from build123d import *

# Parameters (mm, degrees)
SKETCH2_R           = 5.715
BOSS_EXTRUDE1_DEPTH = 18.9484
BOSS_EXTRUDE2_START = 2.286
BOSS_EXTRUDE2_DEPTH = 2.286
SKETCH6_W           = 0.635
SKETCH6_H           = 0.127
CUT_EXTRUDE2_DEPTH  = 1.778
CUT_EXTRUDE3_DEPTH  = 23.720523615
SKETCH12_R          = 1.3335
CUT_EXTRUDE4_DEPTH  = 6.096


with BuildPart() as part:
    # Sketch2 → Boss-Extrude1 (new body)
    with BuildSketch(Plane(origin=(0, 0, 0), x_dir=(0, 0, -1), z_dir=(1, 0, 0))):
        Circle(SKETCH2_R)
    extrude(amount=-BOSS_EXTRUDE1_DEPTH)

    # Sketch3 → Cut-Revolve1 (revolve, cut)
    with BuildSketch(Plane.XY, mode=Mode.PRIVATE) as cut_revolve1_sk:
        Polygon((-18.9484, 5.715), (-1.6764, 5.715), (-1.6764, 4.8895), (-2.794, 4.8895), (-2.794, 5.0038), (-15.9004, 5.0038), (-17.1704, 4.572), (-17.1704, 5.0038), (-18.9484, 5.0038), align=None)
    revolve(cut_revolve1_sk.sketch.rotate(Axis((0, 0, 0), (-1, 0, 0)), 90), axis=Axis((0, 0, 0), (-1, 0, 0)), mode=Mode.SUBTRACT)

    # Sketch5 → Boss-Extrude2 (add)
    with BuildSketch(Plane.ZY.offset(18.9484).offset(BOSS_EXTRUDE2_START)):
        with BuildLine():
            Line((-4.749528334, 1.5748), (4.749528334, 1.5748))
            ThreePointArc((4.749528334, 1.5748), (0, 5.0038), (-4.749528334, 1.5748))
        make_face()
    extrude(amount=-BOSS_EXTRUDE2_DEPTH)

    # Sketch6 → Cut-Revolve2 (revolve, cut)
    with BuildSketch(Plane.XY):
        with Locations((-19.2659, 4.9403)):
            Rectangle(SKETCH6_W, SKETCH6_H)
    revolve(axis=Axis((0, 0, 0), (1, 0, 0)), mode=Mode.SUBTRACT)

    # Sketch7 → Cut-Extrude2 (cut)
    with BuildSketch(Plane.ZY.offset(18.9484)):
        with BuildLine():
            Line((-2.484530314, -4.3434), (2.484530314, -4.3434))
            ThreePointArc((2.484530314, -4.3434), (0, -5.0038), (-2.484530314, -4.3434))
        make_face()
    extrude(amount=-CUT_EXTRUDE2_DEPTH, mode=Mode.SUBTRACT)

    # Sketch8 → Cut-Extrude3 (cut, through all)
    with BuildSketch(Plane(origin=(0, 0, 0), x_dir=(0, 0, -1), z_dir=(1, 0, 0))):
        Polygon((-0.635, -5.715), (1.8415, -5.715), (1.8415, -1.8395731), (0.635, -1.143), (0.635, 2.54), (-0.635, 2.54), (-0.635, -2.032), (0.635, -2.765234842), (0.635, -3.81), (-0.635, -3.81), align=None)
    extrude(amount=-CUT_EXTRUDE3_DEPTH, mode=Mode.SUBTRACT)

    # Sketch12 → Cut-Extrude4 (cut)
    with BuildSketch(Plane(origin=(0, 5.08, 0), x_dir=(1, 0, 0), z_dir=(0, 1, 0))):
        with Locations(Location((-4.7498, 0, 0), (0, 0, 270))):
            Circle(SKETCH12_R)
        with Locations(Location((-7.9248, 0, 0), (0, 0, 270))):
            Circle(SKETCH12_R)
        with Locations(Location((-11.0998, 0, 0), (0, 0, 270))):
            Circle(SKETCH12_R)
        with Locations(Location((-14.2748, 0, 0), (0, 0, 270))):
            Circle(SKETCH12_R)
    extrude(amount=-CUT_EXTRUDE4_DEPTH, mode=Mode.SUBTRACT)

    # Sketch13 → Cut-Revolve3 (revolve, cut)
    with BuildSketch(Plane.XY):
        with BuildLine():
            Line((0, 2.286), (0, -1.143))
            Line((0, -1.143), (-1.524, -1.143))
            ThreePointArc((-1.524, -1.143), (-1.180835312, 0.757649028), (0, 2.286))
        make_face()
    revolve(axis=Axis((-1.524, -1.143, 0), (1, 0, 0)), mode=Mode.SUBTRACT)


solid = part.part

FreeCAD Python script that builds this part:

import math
import FreeCAD as App
import Part
import Sketcher
Q = App.Units.Quantity

doc = App.newDocument("Part")
body = doc.addObject("PartDesign::Body", "Body")

# Sketch on YZ plane
sketch1 = body.newObject("Sketcher::SketchObject", "Sketch")
sketch1.AttachmentSupport = (doc.getObject("YZ_Plane"), [""])
sketch1.MapMode = "FlatFace"
sketch1.addGeometry(Part.Circle(App.Vector(0, 0, 0), App.Vector(0, 0, 1), 5.715), False)
sketch1.addConstraint([
    Sketcher.Constraint("Coincident", 0, 3, -1, 1),
    Sketcher.Constraint("Diameter", 0, Q("0.45 in")),
])
pad1 = body.newObject("PartDesign::Pad", "Pad")
pad1.Profile = sketch1
pad1.Length = Q("0.746 in")
pad1.Reversed = True

# Sketch on XY plane
sketch2 = body.newObject("Sketcher::SketchObject", "Sketch001")
sketch2.AttachmentSupport = (doc.getObject("XY_Plane"), [""])
sketch2.MapMode = "FlatFace"
sketch2.addGeometry([
    Part.LineSegment(App.Vector(-1.6764, 5.715, 0), App.Vector(-18.9484, 5.715, 0)),  # 0
    Part.LineSegment(App.Vector(-18.9484, 5.715, 0), App.Vector(-18.9484, 5.0038, 0)),  # 1
    Part.LineSegment(App.Vector(-18.9484, 5.0038, 0), App.Vector(-17.1704, 5.0038, 0)),  # 2
    Part.LineSegment(App.Vector(-17.1704, 5.0038, 0), App.Vector(-17.1704, 4.572, 0)),  # 3
    Part.LineSegment(App.Vector(-17.1704, 4.572, 0), App.Vector(-15.9004, 5.0038, 0)),  # 4
    Part.LineSegment(App.Vector(-15.9004, 5.0038, 0), App.Vector(-2.794, 5.0038, 0)),  # 5
    Part.LineSegment(App.Vector(-2.794, 5.0038, 0), App.Vector(-2.794, 4.8895, 0)),  # 6
    Part.LineSegment(App.Vector(-2.794, 4.8895, 0), App.Vector(-1.6764, 4.8895, 0)),  # 7
    Part.LineSegment(App.Vector(-1.6764, 4.8895, 0), App.Vector(-1.6764, 5.715, 0)),  # 8
], False)
sketch2.addConstraint([
    Sketcher.Constraint("Coincident", 0, 2, 1, 1),
    Sketcher.Constraint("Coincident", 1, 2, 2, 1),
    Sketcher.Constraint("Coincident", 2, 2, 3, 1),
    Sketcher.Constraint("Coincident", 3, 2, 4, 1),
    Sketcher.Constraint("Coincident", 4, 2, 5, 1),
    Sketcher.Constraint("Coincident", 5, 2, 6, 1),
    Sketcher.Constraint("Coincident", 6, 2, 7, 1),
    Sketcher.Constraint("Coincident", 7, 2, 8, 1),
    Sketcher.Constraint("Coincident", 8, 2, 0, 1),
    Sketcher.Constraint("Horizontal", 0),
    Sketcher.Constraint("Vertical", 1),
    Sketcher.Constraint("Horizontal", 2),
    Sketcher.Constraint("Vertical", 3),
    Sketcher.Constraint("Horizontal", 5),
    Sketcher.Constraint("Vertical", 6),
    Sketcher.Constraint("Horizontal", 7),
    Sketcher.Constraint("Vertical", 8),
    Sketcher.Constraint("Horizontal", 2, 2, 4, 2),
    Sketcher.Constraint("DistanceX", 0, 2, 0, 1, Q("0.68 in")),
    Sketcher.Constraint("DistanceX", 2, 1, 2, 2, Q("0.07 in")),
    Sketcher.Constraint("DistanceX", 5, 1, 5, 2, Q("0.516 in")),
    Sketcher.Constraint("DistanceX", 7, 1, 7, 2, Q("0.044 in")),
    Sketcher.Constraint("DistanceY", 1, 2, 1, 1, Q("0.028 in")),
    Sketcher.Constraint("DistanceY", 3, 2, 3, 1, Q("0.017 in")),
    Sketcher.Constraint("DistanceY", -1, 1, 3, 2, Q("0.18 in")),
    Sketcher.Constraint("DistanceX", 5, 2, -1, 1, Q("0.11 in")),
    Sketcher.Constraint("DistanceY", 6, 2, 6, 1, Q("0.0045 in")),
])
groove = body.newObject("PartDesign::Groove", "Groove")
groove.Profile = sketch2
groove.ReferenceAxis = (sketch2, ["H_Axis"])
groove.Angle = 360

# Sketch on YZ plane
sketch3 = body.newObject("Sketcher::SketchObject", "Sketch002")
sketch3.AttachmentSupport = (doc.getObject("YZ_Plane"), [""])
sketch3.MapMode = "FlatFace"
sketch3.AttachmentOffset = App.Placement(App.Vector(0, 0, -0.836 * 25.4), App.Rotation())
sketch3.addGeometry([
    Part.LineSegment(App.Vector(1.5748, -4.749528, 0), App.Vector(1.5748, 4.749528, 0)),
    Part.ArcOfCircle(Part.Circle(App.Vector(0, 0, 0), App.Vector(0, 0, 1), 5.0038), math.radians(-71.65604), math.radians(71.65604)),
], False)
sketch3.addConstraint([
    Sketcher.Constraint("Coincident", 0, 1, 1, 1),
    Sketcher.Constraint("Coincident", 1, 2, 0, 2),
    Sketcher.Constraint("Vertical", 0),
    Sketcher.Constraint("Coincident", 1, 3, -1, 1),
    Sketcher.Constraint("Radius", 1, Q("0.197 in")),
    Sketcher.Constraint("DistanceX", -1, 1, 0, 1, Q("0.062 in")),
])
pad2 = body.newObject("PartDesign::Pad", "Pad001")
pad2.Profile = sketch3
pad2.Length = Q("0.09 in")

# Sketch on XY plane
sketch4 = body.newObject("Sketcher::SketchObject", "Sketch003")
sketch4.AttachmentSupport = (doc.getObject("XY_Plane"), [""])
sketch4.MapMode = "FlatFace"
sketch4.addGeometry([
    Part.LineSegment(App.Vector(-19.5834, 5.0038, 0), App.Vector(-19.5834, 4.8768, 0)),
    Part.LineSegment(App.Vector(-19.5834, 4.8768, 0), App.Vector(-18.9484, 4.8768, 0)),
    Part.LineSegment(App.Vector(-18.9484, 4.8768, 0), App.Vector(-18.9484, 5.0038, 0)),
    Part.LineSegment(App.Vector(-18.9484, 5.0038, 0), App.Vector(-19.5834, 5.0038, 0)),
], False)
sketch4.addConstraint([
    Sketcher.Constraint("Coincident", 0, 2, 1, 1),
    Sketcher.Constraint("Coincident", 1, 2, 2, 1),
    Sketcher.Constraint("Coincident", 2, 2, 3, 1),
    Sketcher.Constraint("Coincident", 3, 2, 0, 1),
    Sketcher.Constraint("Vertical", 0),
    Sketcher.Constraint("Horizontal", 1),
    Sketcher.Constraint("Vertical", 2),
    Sketcher.Constraint("Horizontal", 3),
    Sketcher.Constraint("DistanceX", 1, 1, 1, 2, Q("0.025 in")),
    Sketcher.Constraint("DistanceY", 0, 2, 0, 1, Q("0.005 in")),
    Sketcher.Constraint("DistanceX", 0, 2, -1, 1, Q("0.771 in")),
    Sketcher.Constraint("DistanceY", -1, 1, 0, 2, Q("0.192 in")),
])
groove2 = body.newObject("PartDesign::Groove", "Groove001")
groove2.Profile = sketch4
groove2.ReferenceAxis = (sketch4, ["H_Axis"])
groove2.Angle = 360

# Sketch on YZ plane
sketch5 = body.newObject("Sketcher::SketchObject", "Sketch004")
sketch5.AttachmentSupport = (doc.getObject("YZ_Plane"), [""])
sketch5.MapMode = "FlatFace"
sketch5.AttachmentOffset = App.Placement(App.Vector(0, 0, -0.746 * 25.4), App.Rotation())
sketch5.addGeometry([
    Part.LineSegment(App.Vector(-4.3434, 2.48453, 0), App.Vector(-4.3434, -2.48453, 0)),
    Part.ArcOfCircle(Part.Circle(App.Vector(0, 0, 0), App.Vector(0, 0, 1), 5.0038), math.radians(150.229395), math.radians(209.770605)),
], False)
sketch5.addConstraint([
    Sketcher.Constraint("Coincident", 0, 1, 1, 1),
    Sketcher.Constraint("Coincident", 1, 2, 0, 2),
    Sketcher.Constraint("Vertical", 0),
    Sketcher.Constraint("Coincident", 1, 3, -1, 1),
    Sketcher.Constraint("Radius", 1, Q("0.197 in")),
    Sketcher.Constraint("DistanceX", 0, 1, -1, 1, Q("0.171 in")),
])
pocket1 = body.newObject("PartDesign::Pocket", "Pocket")
pocket1.Profile = sketch5
pocket1.Length = Q("0.07 in")
pocket1.Reversed = True

# Sketch on YZ plane
sketch6 = body.newObject("Sketcher::SketchObject", "Sketch005")
sketch6.AttachmentSupport = (doc.getObject("YZ_Plane"), [""])
sketch6.MapMode = "FlatFace"
sketch6.addGeometry([
    Part.LineSegment(App.Vector(-5.715, 0.635, 0), App.Vector(-5.715, -1.8415, 0)),  # 0
    Part.LineSegment(App.Vector(-5.715, -1.8415, 0), App.Vector(-1.839573, -1.8415, 0)),  # 1
    Part.LineSegment(App.Vector(-1.839573, -1.8415, 0), App.Vector(-1.143, -0.635, 0)),  # 2
    Part.LineSegment(App.Vector(-1.143, -0.635, 0), App.Vector(2.54, -0.635, 0)),  # 3
    Part.LineSegment(App.Vector(2.54, -0.635, 0), App.Vector(2.54, 0.635, 0)),  # 4
    Part.LineSegment(App.Vector(2.54, 0.635, 0), App.Vector(-2.032, 0.635, 0)),  # 5
    Part.LineSegment(App.Vector(-2.032, 0.635, 0), App.Vector(-2.765235, -0.635, 0)),  # 6
    Part.LineSegment(App.Vector(-2.765235, -0.635, 0), App.Vector(-3.81, -0.635, 0)),  # 7
    Part.LineSegment(App.Vector(-3.81, -0.635, 0), App.Vector(-3.81, 0.635, 0)),  # 8
    Part.LineSegment(App.Vector(-3.81, 0.635, 0), App.Vector(-5.715, 0.635, 0)),  # 9
], False)
sketch6.addConstraint([
    Sketcher.Constraint("Coincident", 0, 2, 1, 1),
    Sketcher.Constraint("Coincident", 1, 2, 2, 1),
    Sketcher.Constraint("Coincident", 2, 2, 3, 1),
    Sketcher.Constraint("Coincident", 3, 2, 4, 1),
    Sketcher.Constraint("Coincident", 4, 2, 5, 1),
    Sketcher.Constraint("Coincident", 5, 2, 6, 1),
    Sketcher.Constraint("Coincident", 6, 2, 7, 1),
    Sketcher.Constraint("Coincident", 7, 2, 8, 1),
    Sketcher.Constraint("Coincident", 8, 2, 9, 1),
    Sketcher.Constraint("Coincident", 9, 2, 0, 1),
    Sketcher.Constraint("Vertical", 0),
    Sketcher.Constraint("Horizontal", 1),
    Sketcher.Constraint("Horizontal", 3),
    Sketcher.Constraint("Vertical", 4),
    Sketcher.Constraint("Horizontal", 5),
    Sketcher.Constraint("Horizontal", 7),
    Sketcher.Constraint("Vertical", 8),
    Sketcher.Constraint("Horizontal", 9),
    Sketcher.Constraint("Parallel", 2, 6),
    Sketcher.Constraint("Horizontal", 3, 2, 6, 2),
    Sketcher.Constraint("Horizontal", 5, 2, 8, 2),
    Sketcher.Constraint("Angle", 2, Q("60 deg")),
    Sketcher.Constraint("DistanceX", 5, 2, 5, 1, Q("0.18 in")),
    Sketcher.Constraint("DistanceY", 4, 1, 4, 2, Q("0.05 in")),
    Sketcher.Constraint("DistanceX", -1, 1, 3, 2, Q("0.1 in")),
    Sketcher.Constraint("DistanceX", 3, 1, 3, 2, Q("0.145 in")),
    Sketcher.Constraint("DistanceX", 9, 2, 9, 1, Q("0.075 in")),
    Sketcher.Constraint("DistanceX", 7, 2, -1, 1, Q("0.15 in")),
    Sketcher.Constraint("DistanceY", 0, 2, 0, 1, Q("0.0975 in")),
    Sketcher.Constraint("DistanceY", 2, 2, -1, 1, Q("0.025 in")),
])
pocket2 = body.newObject("PartDesign::Pocket", "Pocket001")
pocket2.Profile = sketch6
pocket2.Type = "ThroughAll"

# Sketch on XZ plane
sketch7 = body.newObject("Sketcher::SketchObject", "Sketch006")
sketch7.AttachmentSupport = (doc.getObject("XZ_Plane"), [""])
sketch7.MapMode = "FlatFace"
sketch7.AttachmentOffset = App.Placement(App.Vector(0, 0, -0.2 * 25.4), App.Rotation())
sketch7.addGeometry([
    Part.Circle(App.Vector(-4.7498, 0, 0), App.Vector(0, 0, 1), 1.3335),
    Part.Circle(App.Vector(-7.9248, 0, 0), App.Vector(0, 0, 1), 1.3335),
    Part.Circle(App.Vector(-11.0998, 0, 0), App.Vector(0, 0, 1), 1.3335),
    Part.Circle(App.Vector(-14.2748, 0, 0), App.Vector(0, 0, 1), 1.3335),
], False)
sketch7.addConstraint([
    Sketcher.Constraint("Equal", 0, 1),
    Sketcher.Constraint("Equal", 1, 2),
    Sketcher.Constraint("Equal", 2, 3),
    Sketcher.Constraint("PointOnObject", 0, 3, -1),
    Sketcher.Constraint("PointOnObject", 1, 3, -1),
    Sketcher.Constraint("PointOnObject", 2, 3, -1),
    Sketcher.Constraint("PointOnObject", 3, 3, -1),
    Sketcher.Constraint("Diameter", 0, Q("0.105 in")),
    Sketcher.Constraint("DistanceX", 2, 3, 0, 3, Q("0.25 in")),
    Sketcher.Constraint("DistanceX", 3, 3, 1, 3, Q("0.25 in")),
    Sketcher.Constraint("DistanceX", 0, 3, -1, 1, Q("0.187 in")),
    Sketcher.Constraint("DistanceX", 1, 3, -1, 1, Q("0.312 in")),
])
pocket3 = body.newObject("PartDesign::Pocket", "Pocket002")
pocket3.Profile = sketch7
pocket3.Length = Q("0.24 in")
pocket3.Reversed = True

# Sketch on XY plane
sketch8 = body.newObject("Sketcher::SketchObject", "Sketch007")
sketch8.AttachmentSupport = (doc.getObject("XY_Plane"), [""])
sketch8.MapMode = "FlatFace"
sketch8.addGeometry([
    Part.LineSegment(App.Vector(0, -1.143, 0), App.Vector(0, 2.286, 0)),
    Part.ArcOfCircle(Part.Circle(App.Vector(2.53773, -0.895047, 0), App.Vector(0, 0, 1), 4.069292), math.radians(128.581668), math.radians(183.493354)),
    Part.LineSegment(App.Vector(-1.524, -1.143, 0), App.Vector(0, -1.143, 0)),
], False)
sketch8.addGeometry(Part.LineSegment(App.Vector(-1.524, -1.143, 0), App.Vector(2.53773, -1.143, 0)), True)  # axis
sketch8.addConstraint([
    Sketcher.Constraint("Coincident", 0, 2, 1, 1),
    Sketcher.Constraint("Coincident", 1, 2, 2, 1),
    Sketcher.Constraint("Coincident", 2, 2, 0, 1),
    Sketcher.Constraint("Vertical", 0),
    Sketcher.Constraint("Horizontal", 2),
    Sketcher.Constraint("Horizontal", 3),
    Sketcher.Constraint("Coincident", 3, 1, 1, 2),
    Sketcher.Constraint("PointOnObject", 0, 2, -2),
    Sketcher.Constraint("Vertical", 1, 3, 3, 2),
    Sketcher.Constraint("DistanceX", 2, 1, 2, 2, Q("0.06 in")),
    Sketcher.Constraint("DistanceY", 0, 1, 0, 2, Q("0.135 in")),
    Sketcher.Constraint("DistanceY", -1, 1, 0, 2, Q("0.09 in")),
    Sketcher.Constraint("Radius", 1, Q("4.069292 mm")),
])
groove3 = body.newObject("PartDesign::Groove", "Groove002")
groove3.Profile = sketch8
groove3.ReferenceAxis = (sketch8, ["Axis0"])
groove3.Angle = 360

doc.recompute()
